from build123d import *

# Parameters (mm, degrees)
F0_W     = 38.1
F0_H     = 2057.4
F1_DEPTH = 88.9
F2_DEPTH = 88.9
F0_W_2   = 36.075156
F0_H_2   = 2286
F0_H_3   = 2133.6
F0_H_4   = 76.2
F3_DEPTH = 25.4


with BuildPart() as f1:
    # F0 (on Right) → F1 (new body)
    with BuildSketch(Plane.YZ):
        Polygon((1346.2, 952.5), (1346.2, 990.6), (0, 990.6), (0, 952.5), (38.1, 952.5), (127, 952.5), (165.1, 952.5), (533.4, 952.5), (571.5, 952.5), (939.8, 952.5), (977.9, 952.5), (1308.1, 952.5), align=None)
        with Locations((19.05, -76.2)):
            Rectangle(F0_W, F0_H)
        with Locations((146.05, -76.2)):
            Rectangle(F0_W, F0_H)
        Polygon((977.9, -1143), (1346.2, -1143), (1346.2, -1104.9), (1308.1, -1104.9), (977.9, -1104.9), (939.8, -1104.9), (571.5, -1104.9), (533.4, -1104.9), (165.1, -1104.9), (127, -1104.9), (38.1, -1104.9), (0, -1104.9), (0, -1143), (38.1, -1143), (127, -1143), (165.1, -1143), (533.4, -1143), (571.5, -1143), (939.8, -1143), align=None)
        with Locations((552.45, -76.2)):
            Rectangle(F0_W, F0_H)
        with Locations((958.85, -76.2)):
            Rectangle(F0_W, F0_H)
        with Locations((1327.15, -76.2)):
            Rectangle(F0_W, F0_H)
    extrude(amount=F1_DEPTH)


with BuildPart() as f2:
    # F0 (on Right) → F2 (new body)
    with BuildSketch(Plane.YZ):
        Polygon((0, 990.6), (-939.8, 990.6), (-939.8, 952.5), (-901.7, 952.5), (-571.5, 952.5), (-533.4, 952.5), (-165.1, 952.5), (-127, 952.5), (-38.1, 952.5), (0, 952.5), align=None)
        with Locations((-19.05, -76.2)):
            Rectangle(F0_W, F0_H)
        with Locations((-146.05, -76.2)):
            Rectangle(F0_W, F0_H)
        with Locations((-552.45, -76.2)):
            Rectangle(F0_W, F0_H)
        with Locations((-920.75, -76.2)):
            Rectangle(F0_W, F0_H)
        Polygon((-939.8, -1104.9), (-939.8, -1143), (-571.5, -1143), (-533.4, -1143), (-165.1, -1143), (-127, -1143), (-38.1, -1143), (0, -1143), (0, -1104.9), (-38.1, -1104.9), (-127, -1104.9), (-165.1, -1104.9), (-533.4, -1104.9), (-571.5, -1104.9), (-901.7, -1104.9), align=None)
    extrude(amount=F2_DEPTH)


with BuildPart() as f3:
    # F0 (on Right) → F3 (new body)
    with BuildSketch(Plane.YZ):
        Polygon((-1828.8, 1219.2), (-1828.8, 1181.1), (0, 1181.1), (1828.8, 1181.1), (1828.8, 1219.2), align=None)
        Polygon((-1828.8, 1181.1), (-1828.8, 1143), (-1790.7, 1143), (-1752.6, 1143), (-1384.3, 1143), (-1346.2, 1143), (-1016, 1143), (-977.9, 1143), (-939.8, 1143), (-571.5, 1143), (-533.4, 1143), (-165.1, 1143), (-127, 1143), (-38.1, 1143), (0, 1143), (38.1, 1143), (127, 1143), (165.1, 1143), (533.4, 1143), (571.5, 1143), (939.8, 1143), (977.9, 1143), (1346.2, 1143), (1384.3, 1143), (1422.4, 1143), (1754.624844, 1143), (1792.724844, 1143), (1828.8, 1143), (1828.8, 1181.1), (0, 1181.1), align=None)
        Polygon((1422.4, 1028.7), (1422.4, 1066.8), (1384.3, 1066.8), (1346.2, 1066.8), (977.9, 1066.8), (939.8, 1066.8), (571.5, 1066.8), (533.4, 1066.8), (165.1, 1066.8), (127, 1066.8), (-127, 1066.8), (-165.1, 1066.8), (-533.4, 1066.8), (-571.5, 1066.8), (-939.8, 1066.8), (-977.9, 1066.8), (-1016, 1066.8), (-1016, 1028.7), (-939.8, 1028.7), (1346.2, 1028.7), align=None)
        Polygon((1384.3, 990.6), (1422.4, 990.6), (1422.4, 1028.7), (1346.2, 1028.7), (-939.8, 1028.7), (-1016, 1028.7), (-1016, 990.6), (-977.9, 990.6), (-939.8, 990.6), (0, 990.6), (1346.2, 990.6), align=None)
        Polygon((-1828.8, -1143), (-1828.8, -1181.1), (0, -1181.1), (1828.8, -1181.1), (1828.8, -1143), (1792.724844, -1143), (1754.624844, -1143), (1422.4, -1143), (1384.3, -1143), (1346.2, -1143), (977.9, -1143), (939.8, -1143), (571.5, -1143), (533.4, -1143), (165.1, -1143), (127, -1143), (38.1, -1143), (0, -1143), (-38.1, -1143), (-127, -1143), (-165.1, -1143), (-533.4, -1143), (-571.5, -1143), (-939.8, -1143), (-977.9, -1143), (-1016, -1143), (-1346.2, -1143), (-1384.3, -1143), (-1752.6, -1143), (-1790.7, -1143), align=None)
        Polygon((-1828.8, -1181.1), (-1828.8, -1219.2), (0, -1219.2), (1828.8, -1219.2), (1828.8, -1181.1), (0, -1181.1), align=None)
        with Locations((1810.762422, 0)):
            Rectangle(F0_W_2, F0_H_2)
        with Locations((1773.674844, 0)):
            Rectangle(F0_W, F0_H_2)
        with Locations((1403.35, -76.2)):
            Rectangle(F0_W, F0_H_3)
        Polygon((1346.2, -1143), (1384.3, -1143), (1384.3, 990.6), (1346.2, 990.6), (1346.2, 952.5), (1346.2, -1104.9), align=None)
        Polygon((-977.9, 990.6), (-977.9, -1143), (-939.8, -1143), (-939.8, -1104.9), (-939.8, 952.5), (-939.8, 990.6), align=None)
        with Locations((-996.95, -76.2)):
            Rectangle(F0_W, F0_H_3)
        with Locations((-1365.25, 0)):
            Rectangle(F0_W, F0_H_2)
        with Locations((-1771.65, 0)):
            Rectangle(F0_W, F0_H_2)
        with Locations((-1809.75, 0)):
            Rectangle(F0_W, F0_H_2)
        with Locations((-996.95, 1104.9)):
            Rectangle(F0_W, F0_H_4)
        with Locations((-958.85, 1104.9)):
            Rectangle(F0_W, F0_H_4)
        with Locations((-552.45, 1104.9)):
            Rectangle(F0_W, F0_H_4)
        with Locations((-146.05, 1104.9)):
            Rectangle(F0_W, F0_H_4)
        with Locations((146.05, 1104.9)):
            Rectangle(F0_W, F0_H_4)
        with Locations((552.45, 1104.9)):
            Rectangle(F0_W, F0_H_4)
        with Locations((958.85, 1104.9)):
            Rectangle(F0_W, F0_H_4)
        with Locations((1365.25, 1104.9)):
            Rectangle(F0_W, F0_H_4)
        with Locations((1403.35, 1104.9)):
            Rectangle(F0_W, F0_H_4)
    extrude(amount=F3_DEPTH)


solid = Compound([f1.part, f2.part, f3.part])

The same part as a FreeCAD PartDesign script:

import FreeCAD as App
import Part
import Sketcher
from FreeCAD import Vector
Q = App.Units.Quantity

doc = App.newDocument("Part")
body = doc.addObject("PartDesign::Body", "Body")

# Sketch on YZ plane
sketch1 = doc.addObject("Sketcher::SketchObject", "Sketch")
body.addObject(sketch1)
sketch1.AttachmentSupport = (doc.YZ_Plane, [""])
sketch1.MapMode = "FlatFace"
sketch1.addGeometry([
    Part.LineSegment(Vector(1346.2, 990.6, 0), Vector(0, 990.6, 0)),  # 0
    Part.LineSegment(Vector(0, 990.6, 0), Vector(0, -1143, 0)),  # 1
    Part.LineSegment(Vector(0, -1143, 0), Vector(1346.2, -1143, 0)),  # 2
    Part.LineSegment(Vector(1346.2, -1143, 0), Vector(1346.2, 990.6, 0)),  # 3
    Part.LineSegment(Vector(1308.1, -1104.9, 0), Vector(977.9, -1104.9, 0)),  # 4
    Part.LineSegment(Vector(977.9, -1104.9, 0), Vector(977.9, 952.5, 0)),  # 5
    Part.LineSegment(Vector(977.9, 952.5, 0), Vector(1308.1, 952.5, 0)),  # 6
    Part.LineSegment(Vector(1308.1, 952.5, 0), Vector(1308.1, -1104.9, 0)),  # 7
    Part.LineSegment(Vector(939.8, -1104.9, 0), Vector(571.5, -1104.9, 0)),  # 8
    Part.LineSegment(Vector(571.5, -1104.9, 0), Vector(571.5, 952.5, 0)),  # 9
    Part.LineSegment(Vector(571.5, 952.5, 0), Vector(939.8, 952.5, 0)),  # 10
    Part.LineSegment(Vector(939.8, 952.5, 0), Vector(939.8, -1104.9, 0)),  # 11
    Part.LineSegment(Vector(533.4, -1104.9, 0), Vector(165.1, -1104.9, 0)),  # 12
    Part.LineSegment(Vector(165.1, -1104.9, 0), Vector(165.1, 952.5, 0)),  # 13
    Part.LineSegment(Vector(165.1, 952.5, 0), Vector(533.4, 952.5, 0)),  # 14
    Part.LineSegment(Vector(533.4, 952.5, 0), Vector(533.4, -1104.9, 0)),  # 15
    Part.LineSegment(Vector(38.1, -1104.9, 0), Vector(38.1, 952.5, 0)),  # 16
    Part.LineSegment(Vector(38.1, 952.5, 0), Vector(127, 952.5, 0)),  # 17
    Part.LineSegment(Vector(127, 952.5, 0), Vector(127, -1104.9, 0)),  # 18
    Part.LineSegment(Vector(127, -1104.9, 0), Vector(38.1, -1104.9, 0)),  # 19
], False)
sketch1.addConstraint([
    Sketcher.Constraint("Coincident", 0, 2, 1, 1),
    Sketcher.Constraint("Coincident", 1, 2, 2, 1),
    Sketcher.Constraint("Coincident", 2, 2, 3, 1),
    Sketcher.Constraint("Coincident", 3, 2, 0, 1),
    Sketcher.Constraint("Coincident", 4, 2, 5, 1),
    Sketcher.Constraint("Coincident", 5, 2, 6, 1),
    Sketcher.Constraint("Coincident", 6, 2, 7, 1),
    Sketcher.Constraint("Coincident", 7, 2, 4, 1),
    Sketcher.Constraint("Coincident", 8, 2, 9, 1),
    Sketcher.Constraint("Coincident", 9, 2, 10, 1),
    Sketcher.Constraint("Coincident", 10, 2, 11, 1),
    Sketcher.Constraint("Coincident", 11, 2, 8, 1),
    Sketcher.Constraint("Coincident", 12, 2, 13, 1),
    Sketcher.Constraint("Coincident", 13, 2, 14, 1),
    Sketcher.Constraint("Coincident", 14, 2, 15, 1),
    Sketcher.Constraint("Coincident", 15, 2, 12, 1),
    Sketcher.Constraint("Coincident", 16, 2, 17, 1),
    Sketcher.Constraint("Coincident", 17, 2, 18, 1),
    Sketcher.Constraint("Coincident", 18, 2, 19, 1),
    Sketcher.Constraint("Coincident", 19, 2, 16, 1),
    Sketcher.Constraint("Horizontal", 0),
    Sketcher.Constraint("Vertical", 1),
    Sketcher.Constraint("Horizontal", 2),
    Sketcher.Constraint("Vertical", 3),
    Sketcher.Constraint("Horizontal", 4),
    Sketcher.Constraint("Vertical", 5),
    Sketcher.Constraint("Horizontal", 6),
    Sketcher.Constraint("Vertical", 7),
    Sketcher.Constraint("Horizontal", 8),
    Sketcher.Constraint("Vertical", 9),
    Sketcher.Constraint("Horizontal", 10),
    Sketcher.Constraint("Vertical", 11),
    Sketcher.Constraint("Horizontal", 12),
    Sketcher.Constraint("Vertical", 13),
    Sketcher.Constraint("Horizontal", 14),
    Sketcher.Constraint("Vertical", 15),
    Sketcher.Constraint("Vertical", 16),
    Sketcher.Constraint("Horizontal", 17),
    Sketcher.Constraint("Vertical", 18),
    Sketcher.Constraint("Horizontal", 19),
    Sketcher.Constraint("PointOnObject", 0, 2, -2),
    Sketcher.Constraint("Horizontal", 7, 2, 8, 2),
    Sketcher.Constraint("Horizontal", 6, 2, 9, 2),
    Sketcher.Constraint("Horizontal", 11, 2, 12, 2),
    Sketcher.Constraint("Horizontal", 10, 2, 13, 2),
    Sketcher.Constraint("Horizontal", 14, 2, 16, 2),
    Sketcher.Constraint("Horizontal", 15, 2, 18, 2),
    Sketcher.Constraint("Equal", 10, 12),
    Sketcher.Constraint("DistanceX", 0, 2, 0, 1, Q("53 in")),
    Sketcher.Constraint("DistanceX", 4, 2, 4, 1, Q("13 in")),
    Sketcher.Constraint("DistanceY", 1, 2, 1, 1, Q("84 in")),
    Sketcher.Constraint("DistanceY", 5, 1, 5, 2, Q("81 in")),
    Sketcher.Constraint("DistanceX", 8, 2, 8, 1, Q("14.5 in")),
    Sketcher.Constraint("DistanceX", 17, 1, 17, 2, Q("3.5 in")),
    Sketcher.Constraint("DistanceY", -1, 1, 0, 2, Q("39 in")),
    Sketcher.Constraint("DistanceX", -1, 1, 10, 2, Q("37 in")),
    Sketcher.Constraint("DistanceX", -1, 1, 14, 2, Q("21 in")),
    Sketcher.Constraint("DistanceX", -1, 1, 17, 2, Q("5 in")),
    Sketcher.Constraint("DistanceX", 8, 2, 4, 2, Q("16 in")),
    Sketcher.Constraint("DistanceY", 4, 2, -1, 1, Q("43.5 in")),
])
pad1 = doc.addObject("PartDesign::Pad", "Pad")
body.addObject(pad1)
pad1.Profile = sketch1
pad1.Length = Q("3.5 in")
body2 = doc.addObject("PartDesign::Body", "Body001")

# Sketch on YZ plane
sketch2 = doc.addObject("Sketcher::SketchObject", "Sketch001")
body2.addObject(sketch2)
sketch2.AttachmentSupport = (doc.getObject("YZ_Plane001"), [""])
sketch2.MapMode = "FlatFace"
sketch2.addGeometry([
    Part.LineSegment(Vector(0, 990.6, 0), Vector(-939.8, 990.6, 0)),  # 0
    Part.LineSegment(Vector(-939.8, 990.6, 0), Vector(-939.8, -1143, 0)),  # 1
    Part.LineSegment(Vector(-939.8, -1143, 0), Vector(0, -1143, 0)),  # 2
    Part.LineSegment(Vector(0, -1143, 0), Vector(0, 990.6, 0)),  # 3
    Part.LineSegment(Vector(-901.7, -1104.9, 0), Vector(-901.7, 952.5, 0)),  # 4
    Part.LineSegment(Vector(-901.7, 952.5, 0), Vector(-571.5, 952.5, 0)),  # 5
    Part.LineSegment(Vector(-571.5, 952.5, 0), Vector(-571.5, -1104.9, 0)),  # 6
    Part.LineSegment(Vector(-571.5, -1104.9, 0), Vector(-901.7, -1104.9, 0)),  # 7
    Part.LineSegment(Vector(-533.4, -1104.9, 0), Vector(-533.4, 952.5, 0)),  # 8
    Part.LineSegment(Vector(-533.4, 952.5, 0), Vector(-165.1, 952.5, 0)),  # 9
    Part.LineSegment(Vector(-165.1, 952.5, 0), Vector(-165.1, -1104.9, 0)),  # 10
    Part.LineSegment(Vector(-165.1, -1104.9, 0), Vector(-533.4, -1104.9, 0)),  # 11
    Part.LineSegment(Vector(-127, -1104.9, 0), Vector(-127, 952.5, 0)),  # 12
    Part.LineSegment(Vector(-127, 952.5, 0), Vector(-38.1, 952.5, 0)),  # 13
    Part.LineSegment(Vector(-38.1, 952.5, 0), Vector(-38.1, -1104.9, 0)),  # 14
    Part.LineSegment(Vector(-38.1, -1104.9, 0), Vector(-127, -1104.9, 0)),  # 15
], False)
sketch2.addConstraint([
    Sketcher.Constraint("Coincident", 0, 2, 1, 1),
    Sketcher.Constraint("Coincident", 1, 2, 2, 1),
    Sketcher.Constraint("Coincident", 2, 2, 3, 1),
    Sketcher.Constraint("Coincident", 3, 2, 0, 1),
    Sketcher.Constraint("Coincident", 4, 2, 5, 1),
    Sketcher.Constraint("Coincident", 5, 2, 6, 1),
    Sketcher.Constraint("Coincident", 6, 2, 7, 1),
    Sketcher.Constraint("Coincident", 7, 2, 4, 1),
    Sketcher.Constraint("Coincident", 8, 2, 9, 1),
    Sketcher.Constraint("Coincident", 9, 2, 10, 1),
    Sketcher.Constraint("Coincident", 10, 2, 11, 1),
    Sketcher.Constraint("Coincident", 11, 2, 8, 1),
    Sketcher.Constraint("Coincident", 12, 2, 13, 1),
    Sketcher.Constraint("Coincident", 13, 2, 14, 1),
    Sketcher.Constraint("Coincident", 14, 2, 15, 1),
    Sketcher.Constraint("Coincident", 15, 2, 12, 1),
    Sketcher.Constraint("Horizontal", 0),
    Sketcher.Constraint("Vertical", 1),
    Sketcher.Constraint("Horizontal", 2),
    Sketcher.Constraint("Vertical", 3),
    Sketcher.Constraint("Vertical", 4),
    Sketcher.Constraint("Horizontal", 5),
    Sketcher.Constraint("Vertical", 6),
    Sketcher.Constraint("Horizontal", 7),
    Sketcher.Constraint("Vertical", 8),
    Sketcher.Constraint("Horizontal", 9),
    Sketcher.Constraint("Vertical", 10),
    Sketcher.Constraint("Horizontal", 11),
    Sketcher.Constraint("Vertical", 12),
    Sketcher.Constraint("Horizontal", 13),
    Sketcher.Constraint("Vertical", 14),
    Sketcher.Constraint("Horizontal", 15),
    Sketcher.Constraint("PointOnObject", 2, 2, -2),
    Sketcher.Constraint("Horizontal", 5, 2, 8, 2),
    Sketcher.Constraint("Horizontal", 7, 2, 10, 2),
    Sketcher.Constraint("Horizontal", 9, 2, 12, 2),
    Sketcher.Constraint("Horizontal", 11, 2, 14, 2),
    Sketcher.Constraint("DistanceX", 0, 2, 0, 1, Q("37 in")),
    Sketcher.Constraint("DistanceX", 5, 1, 5, 2, Q("13 in")),
    Sketcher.Constraint("DistanceY", 1, 2, 1, 1, Q("84 in")),
    Sketcher.Constraint("DistanceY", 4, 1, 4, 2, Q("81 in")),
    Sketcher.Constraint("DistanceX", 9, 1, 9, 2, Q("14.5 in")),
    Sketcher.Constraint("DistanceX", 13, 1, 13, 2, Q("3.5 in")),
    Sketcher.Constraint("DistanceY", -1, 1, 0, 2, Q("39 in")),
    Sketcher.Constraint("DistanceX", 8, 2, -1, 1, Q("21 in")),
    Sketcher.Constraint("DistanceX", 12, 2, -1, 1, Q("5 in")),
    Sketcher.Constraint("DistanceX", 5, 2, 9, 2, Q("16 in")),
    Sketcher.Constraint("DistanceY", -1, 1, 4, 2, Q("37.5 in")),
])
pad2 = doc.addObject("PartDesign::Pad", "Pad001")
body2.addObject(pad2)
pad2.Profile = sketch2
pad2.Length = Q("3.5 in")
body3 = doc.addObject("PartDesign::Body", "Body002")

# Sketch on YZ plane
sketch3 = doc.addObject("Sketcher::SketchObject", "Sketch002")
body3.addObject(sketch3)
sketch3.AttachmentSupport = (doc.getObject("YZ_Plane002"), [""])
sketch3.MapMode = "FlatFace"
sketch3.addGeometry([
    Part.LineSegment(Vector(-1828.8, 1219.2, 0), Vector(-1828.8, -1219.2, 0)),  # 0
    Part.LineSegment(Vector(-1828.8, -1219.2, 0), Vector(1828.8, -1219.2, 0)),  # 1
    Part.LineSegment(Vector(1828.8, -1219.2, 0), Vector(1828.8, 1219.2, 0)),  # 2
    Part.LineSegment(Vector(1828.8, 1219.2, 0), Vector(-1828.8, 1219.2, 0)),  # 3
    Part.LineSegment(Vector(-1752.6, 1143, 0), Vector(-1384.3, 1143, 0)),  # 4
    Part.LineSegment(Vector(-1384.3, 1143, 0), Vector(-1384.3, -1143, 0)),  # 5
    Part.LineSegment(Vector(-1384.3, -1143, 0), Vector(-1752.6, -1143, 0)),  # 6
    Part.LineSegment(Vector(-1752.6, -1143, 0), Vector(-1752.6, 1143, 0)),  # 7
    Part.LineSegment(Vector(-1346.2, 1143, 0), Vector(-1016, 1143, 0)),  # 8
    Part.LineSegment(Vector(-1016, 1143, 0), Vector(-1016, -1143, 0)),  # 9
    Part.LineSegment(Vector(-1016, -1143, 0), Vector(-1346.2, -1143, 0)),  # 10
    Part.LineSegment(Vector(-1346.2, -1143, 0), Vector(-1346.2, 1143, 0)),  # 11
    Part.LineSegment(Vector(-939.8, 1143, 0), Vector(-571.5, 1143, 0)),  # 12
    Part.LineSegment(Vector(-571.5, 1143, 0), Vector(-571.5, 1066.8, 0)),  # 13
    Part.LineSegment(Vector(-571.5, 1066.8, 0), Vector(-939.8, 1066.8, 0)),  # 14
    Part.LineSegment(Vector(-939.8, 1066.8, 0), Vector(-939.8, 1143, 0)),  # 15
    Part.LineSegment(Vector(-533.4, 1143, 0), Vector(-165.1, 1143, 0)),  # 16
    Part.LineSegment(Vector(-165.1, 1143, 0), Vector(-165.1, 1066.8, 0)),  # 17
    Part.LineSegment(Vector(-165.1, 1066.8, 0), Vector(-533.4, 1066.8, 0)),  # 18
    Part.LineSegment(Vector(-533.4, 1066.8, 0), Vector(-533.4, 1143, 0)),  # 19
    Part.LineSegment(Vector(-127, 1143, 0), Vector(127, 1143, 0)),  # 20
    Part.LineSegment(Vector(127, 1143, 0), Vector(127, 1066.8, 0)),  # 21
    Part.LineSegment(Vector(127, 1066.8, 0), Vector(-127, 1066.8, 0)),  # 22
    Part.LineSegment(Vector(-127, 1066.8, 0), Vector(-127, 1143, 0)),  # 23
    Part.LineSegment(Vector(165.1, 1143, 0), Vector(533.4, 1143, 0)),  # 24
    Part.LineSegment(Vector(533.4, 1143, 0), Vector(533.4, 1066.8, 0)),  # 25
    Part.LineSegment(Vector(533.4, 1066.8, 0), Vector(165.1, 1066.8, 0)),  # 26
    Part.LineSegment(Vector(165.1, 1066.8, 0), Vector(165.1, 1143, 0)),  # 27
    Part.LineSegment(Vector(571.5, 1143, 0), Vector(939.8, 1143, 0)),  # 28
    Part.LineSegment(Vector(939.8, 1143, 0), Vector(939.8, 1066.8, 0)),  # 29
    Part.LineSegment(Vector(939.8, 1066.8, 0), Vector(571.5, 1066.8, 0)),  # 30
    Part.LineSegment(Vector(571.5, 1066.8, 0), Vector(571.5, 1143, 0)),  # 31
    Part.LineSegment(Vector(977.9, 1143, 0), Vector(1346.2, 1143, 0)),  # 32
    Part.LineSegment(Vector(1346.2, 1143, 0), Vector(1346.2, 1066.8, 0)),  # 33
    Part.LineSegment(Vector(1346.2, 1066.8, 0), Vector(977.9, 1066.8, 0)),  # 34
    Part.LineSegment(Vector(977.9, 1066.8, 0), Vector(977.9, 1143, 0)),  # 35
    Part.LineSegment(Vector(1422.4, 1143, 0), Vector(1754.624844, 1143, 0)),  # 36
    Part.LineSegment(Vector(1754.624844, 1143, 0), Vector(1754.624844, -1143, 0)),  # 37
    Part.LineSegment(Vector(1754.624844, -1143, 0), Vector(1422.4, -1143, 0)),  # 38
    Part.LineSegment(Vector(1422.4, -1143, 0), Vector(1422.4, 1143, 0)),  # 39
    Part.LineSegment(Vector(-939.8, 990.6, 0), Vector(1346.2, 990.6, 0)),  # 40
    Part.LineSegment(Vector(1346.2, 990.6, 0), Vector(1346.2, -1143, 0)),  # 41
    Part.LineSegment(Vector(1346.2, -1143, 0), Vector(-939.8, -1143, 0)),  # 42
    Part.LineSegment(Vector(-939.8, -1143, 0), Vector(-939.8, 990.6, 0)),  # 43
], False)
sketch3.addConstraint([
    Sketcher.Constraint("Coincident", 0, 2, 1, 1),
    Sketcher.Constraint("Coincident", 1, 2, 2, 1),
    Sketcher.Constraint("Coincident", 2, 2, 3, 1),
    Sketcher.Constraint("Coincident", 3, 2, 0, 1),
    Sketcher.Constraint("Coincident", 4, 2, 5, 1),
    Sketcher.Constraint("Coincident", 5, 2, 6, 1),
    Sketcher.Constraint("Coincident", 6, 2, 7, 1),
    Sketcher.Constraint("Coincident", 7, 2, 4, 1),
    Sketcher.Constraint("Coincident", 8, 2, 9, 1),
    Sketcher.Constraint("Coincident", 9, 2, 10, 1),
    Sketcher.Constraint("Coincident", 10, 2, 11, 1),
    Sketcher.Constraint("Coincident", 11, 2, 8, 1),
    Sketcher.Constraint("Coincident", 12, 2, 13, 1),
    Sketcher.Constraint("Coincident", 13, 2, 14, 1),
    Sketcher.Constraint("Coincident", 14, 2, 15, 1),
    Sketcher.Constraint("Coincident", 15, 2, 12, 1),
    Sketcher.Constraint("Coincident", 16, 2, 17, 1),
    Sketcher.Constraint("Coincident", 17, 2, 18, 1),
    Sketcher.Constraint("Coincident", 18, 2, 19, 1),
    Sketcher.Constraint("Coincident", 19, 2, 16, 1),
    Sketcher.Constraint("Coincident", 20, 2, 21, 1),
    Sketcher.Constraint("Coincident", 21, 2, 22, 1),
    Sketcher.Constraint("Coincident", 22, 2, 23, 1),
    Sketcher.Constraint("Coincident", 23, 2, 20, 1),
    Sketcher.Constraint("Coincident", 24, 2, 25, 1),
    Sketcher.Constraint("Coincident", 25, 2, 26, 1),
    Sketcher.Constraint("Coincident", 26, 2, 27, 1),
    Sketcher.Constraint("Coincident", 27, 2, 24, 1),
    Sketcher.Constraint("Coincident", 28, 2, 29, 1),
    Sketcher.Constraint("Coincident", 29, 2, 30, 1),
    Sketcher.Constraint("Coincident", 30, 2, 31, 1),
    Sketcher.Constraint("Coincident", 31, 2, 28, 1),
    Sketcher.Constraint("Coincident", 32, 2, 33, 1),
    Sketcher.Constraint("Coincident", 33, 2, 34, 1),
    Sketcher.Constraint("Coincident", 34, 2, 35, 1),
    Sketcher.Constraint("Coincident", 35, 2, 32, 1),
    Sketcher.Constraint("Coincident", 36, 2, 37, 1),
    Sketcher.Constraint("Coincident", 37, 2, 38, 1),
    Sketcher.Constraint("Coincident", 38, 2, 39, 1),
    Sketcher.Constraint("Coincident", 39, 2, 36, 1),
    Sketcher.Constraint("Coincident", 40, 2, 41, 1),
    Sketcher.Constraint("Coincident", 41, 2, 42, 1),
    Sketcher.Constraint("Coincident", 42, 2, 43, 1),
    Sketcher.Constraint("Coincident", 43, 2, 40, 1),
    Sketcher.Constraint("Vertical", 0),
    Sketcher.Constraint("Horizontal", 1),
    Sketcher.Constraint("Vertical", 2),
    Sketcher.Constraint("Horizontal", 3),
    Sketcher.Constraint("Horizontal", 4),
    Sketcher.Constraint("Vertical", 5),
    Sketcher.Constraint("Horizontal", 6),
    Sketcher.Constraint("Vertical", 7),
    Sketcher.Constraint("Horizontal", 8),
    Sketcher.Constraint("Vertical", 9),
    Sketcher.Constraint("Horizontal", 10),
    Sketcher.Constraint("Vertical", 11),
    Sketcher.Constraint("Horizontal", 12),
    Sketcher.Constraint("Vertical", 13),
    Sketcher.Constraint("Horizontal", 14),
    Sketcher.Constraint("Vertical", 15),
    Sketcher.Constraint("Horizontal", 16),
    Sketcher.Constraint("Vertical", 17),
    Sketcher.Constraint("Horizontal", 18),
    Sketcher.Constraint("Vertical", 19),
    Sketcher.Constraint("Horizontal", 20),
    Sketcher.Constraint("Vertical", 21),
    Sketcher.Constraint("Horizontal", 22),
    Sketcher.Constraint("Vertical", 23),
    Sketcher.Constraint("Horizontal", 24),
    Sketcher.Constraint("Vertical", 25),
    Sketcher.Constraint("Horizontal", 26),
    Sketcher.Constraint("Vertical", 27),
    Sketcher.Constraint("Horizontal", 28),
    Sketcher.Constraint("Vertical", 29),
    Sketcher.Constraint("Horizontal", 30),
    Sketcher.Constraint("Vertical", 31),
    Sketcher.Constraint("Horizontal", 32),
    Sketcher.Constraint("Vertical", 33),
    Sketcher.Constraint("Horizontal", 34),
    Sketcher.Constraint("Vertical", 35),
    Sketcher.Constraint("Horizontal", 36),
    Sketcher.Constraint("Vertical", 37),
    Sketcher.Constraint("Horizontal", 38),
    Sketcher.Constraint("Vertical", 39),
    Sketcher.Constraint("Horizontal", 40),
    Sketcher.Constraint("Vertical", 41),
    Sketcher.Constraint("Horizontal", 42),
    Sketcher.Constraint("Vertical", 43),
    Sketcher.Constraint("Symmetric", 0, 2, 2, 2, -1, 1),
    Sketcher.Constraint("Symmetric", 10, 2, 32, 2, -1, 1),
    Sketcher.Constraint("Symmetric", 11, 2, 41, 2, -1, 1),
    Sketcher.Constraint("Symmetric", 28, 2, 42, 2, -1, 1),
    Sketcher.Constraint("Symmetric", 19, 2, 24, 2, -2),
    Sketcher.Constraint("Symmetric", 17, 2, 26, 2, -2),
    Sketcher.Constraint("Symmetric", 15, 2, 28, 2, -2),
    Sketcher.Constraint("Symmetric", 13, 2, 30, 2, -2),
    Sketcher.Constraint("Horizontal", 7, 2, 8, 2),
    Sketcher.Constraint("Horizontal", 6, 2, 9, 2),
    Sketcher.Constraint("Horizontal", 15, 2, 16, 2),
    Sketcher.Constraint("Horizontal", 14, 2, 17, 2),
    Sketcher.Constraint("Horizontal", 19, 2, 20, 2),
    Sketcher.Constraint("Horizontal", 18, 2, 21, 2),
    Sketcher.Constraint("Horizontal", 31, 2, 32, 2),
    Sketcher.Constraint("Horizontal", 30, 2, 33, 2),
    Sketcher.Constraint("Horizontal", 35, 2, 36, 2),
    Sketcher.Constraint("Horizontal", 10, 2, 37, 2),
    Sketcher.Constraint("Equal", 6, 12),
    Sketcher.Constraint("Equal", 14, 16),
    Sketcher.Constraint("Equal", 30, 32),
    Sketcher.Constraint("Equal", 42, 5),
    Sketcher.Constraint("DistanceX", 1, 1, 1, 2, Q("144 in")),
    Sketcher.Constraint("DistanceX", 8, 1, 8, 2, Q("13 in")),
    Sketcher.Constraint("DistanceX", 20, 1, 20, 2, Q("10 in")),
    Sketcher.Constraint("DistanceX", 40, 1, 40, 2, Q("90 in")),
    Sketcher.Constraint("DistanceY", 0, 2, 0, 1, Q("96 in")),
    Sketcher.Constraint("DistanceY", 13, 2, 13, 1, Q("3 in")),
    Sketcher.Constraint("DistanceY", 41, 2, 41, 1, Q("84 in")),
    Sketcher.Constraint("DistanceX", 4, 1, 4, 2, Q("14.5 in")),
    Sketcher.Constraint("DistanceX", 6, 2, -1, 1, Q("69 in")),
    Sketcher.Constraint("DistanceX", 8, 2, -1, 1, Q("40 in")),
    Sketcher.Constraint("DistanceX", 18, 2, -1, 1, Q("21 in")),
    Sketcher.Constraint("DistanceX", -1, 1, 20, 2, Q("5 in")),
    Sketcher.Constraint("DistanceX", -1, 1, 38, 2, Q("56 in")),
    Sketcher.Constraint("DistanceX", 36, 1, 36, 2, Q("332.224844 mm")),
])
pad3 = doc.addObject("PartDesign::Pad", "Pad002")
body3.addObject(pad3)
pad3.Profile = sketch3
pad3.Length = Q("1 in")

doc.recompute()
